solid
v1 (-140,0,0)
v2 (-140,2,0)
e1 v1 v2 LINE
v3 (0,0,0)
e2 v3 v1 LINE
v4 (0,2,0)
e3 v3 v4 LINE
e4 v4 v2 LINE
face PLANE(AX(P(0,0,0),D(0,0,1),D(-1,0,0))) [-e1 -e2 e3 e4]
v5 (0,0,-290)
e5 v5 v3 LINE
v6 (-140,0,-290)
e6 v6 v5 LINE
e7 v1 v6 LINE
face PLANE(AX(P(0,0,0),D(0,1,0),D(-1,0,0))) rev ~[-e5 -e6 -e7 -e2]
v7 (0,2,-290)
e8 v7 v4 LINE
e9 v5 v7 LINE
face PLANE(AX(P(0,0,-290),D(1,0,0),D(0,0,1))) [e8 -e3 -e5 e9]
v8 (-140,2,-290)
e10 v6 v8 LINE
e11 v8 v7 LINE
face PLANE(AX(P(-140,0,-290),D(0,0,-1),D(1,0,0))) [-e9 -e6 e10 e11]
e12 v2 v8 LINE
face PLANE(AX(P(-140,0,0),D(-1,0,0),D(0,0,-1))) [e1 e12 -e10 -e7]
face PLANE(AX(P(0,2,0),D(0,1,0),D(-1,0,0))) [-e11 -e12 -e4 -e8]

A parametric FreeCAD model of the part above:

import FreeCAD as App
import Part
import Sketcher

V = App.Vector
Q = App.Units.Quantity

doc = App.newDocument("Part")
params = doc.addObject("Spreadsheet::Sheet", "Params")
for row, (alias, value) in enumerate([
    ("sketch1_width", "140 mm"),
    ("sketch1_height", "290 mm"),
    ("pad1_length", "2 mm"),
], start=1):
    params.set(f"A{row}", alias)
    params.set(f"B{row}", "=" + value)
    params.setAlias(f"B{row}", alias)

body = doc.addObject("PartDesign::Body", "Body")

sketch1 = doc.addObject("Sketcher::SketchObject", "Sketch")
body.addObject(sketch1)
sketch1.AttachmentSupport = (doc.XZ_Plane, [""])
sketch1.MapMode = "FlatFace"
sketch1.addGeometry([
    Part.LineSegment(V(-140, 0, 0), V(0, 0, 0)),
    Part.LineSegment(V(0, 0, 0), V(0, -290, 0)),
    Part.LineSegment(V(0, -290, 0), V(-140, -290, 0)),
    Part.LineSegment(V(-140, -290, 0), V(-140, 0, 0)),
], False)
sketch1.addConstraint([
    Sketcher.Constraint("Coincident", 0, 2, 1, 1),
    Sketcher.Constraint("Coincident", 1, 2, 2, 1),
    Sketcher.Constraint("Coincident", 2, 2, 3, 1),
    Sketcher.Constraint("Coincident", 3, 2, 0, 1),
    Sketcher.Constraint("Horizontal", 0),
    Sketcher.Constraint("Vertical", 1),
    Sketcher.Constraint("Horizontal", 2),
    Sketcher.Constraint("Vertical", 3),
    Sketcher.Constraint("Coincident", 0, 2, -1, 1),
    Sketcher.Constraint("DistanceX", 0, 1, 0, 2, Q("140 mm")),
    Sketcher.Constraint("DistanceY", 1, 2, 1, 1, Q("290 mm")),
])
sketch1.setExpression("Constraints[9]", "Params.sketch1_width")
sketch1.setExpression("Constraints[10]", "Params.sketch1_height")
pad1 = doc.addObject("PartDesign::Pad", "Pad")
body.addObject(pad1)
pad1.Profile = sketch1
pad1.setExpression("Length", "Params.pad1_length")
pad1.Reversed = True

doc.recompute()
